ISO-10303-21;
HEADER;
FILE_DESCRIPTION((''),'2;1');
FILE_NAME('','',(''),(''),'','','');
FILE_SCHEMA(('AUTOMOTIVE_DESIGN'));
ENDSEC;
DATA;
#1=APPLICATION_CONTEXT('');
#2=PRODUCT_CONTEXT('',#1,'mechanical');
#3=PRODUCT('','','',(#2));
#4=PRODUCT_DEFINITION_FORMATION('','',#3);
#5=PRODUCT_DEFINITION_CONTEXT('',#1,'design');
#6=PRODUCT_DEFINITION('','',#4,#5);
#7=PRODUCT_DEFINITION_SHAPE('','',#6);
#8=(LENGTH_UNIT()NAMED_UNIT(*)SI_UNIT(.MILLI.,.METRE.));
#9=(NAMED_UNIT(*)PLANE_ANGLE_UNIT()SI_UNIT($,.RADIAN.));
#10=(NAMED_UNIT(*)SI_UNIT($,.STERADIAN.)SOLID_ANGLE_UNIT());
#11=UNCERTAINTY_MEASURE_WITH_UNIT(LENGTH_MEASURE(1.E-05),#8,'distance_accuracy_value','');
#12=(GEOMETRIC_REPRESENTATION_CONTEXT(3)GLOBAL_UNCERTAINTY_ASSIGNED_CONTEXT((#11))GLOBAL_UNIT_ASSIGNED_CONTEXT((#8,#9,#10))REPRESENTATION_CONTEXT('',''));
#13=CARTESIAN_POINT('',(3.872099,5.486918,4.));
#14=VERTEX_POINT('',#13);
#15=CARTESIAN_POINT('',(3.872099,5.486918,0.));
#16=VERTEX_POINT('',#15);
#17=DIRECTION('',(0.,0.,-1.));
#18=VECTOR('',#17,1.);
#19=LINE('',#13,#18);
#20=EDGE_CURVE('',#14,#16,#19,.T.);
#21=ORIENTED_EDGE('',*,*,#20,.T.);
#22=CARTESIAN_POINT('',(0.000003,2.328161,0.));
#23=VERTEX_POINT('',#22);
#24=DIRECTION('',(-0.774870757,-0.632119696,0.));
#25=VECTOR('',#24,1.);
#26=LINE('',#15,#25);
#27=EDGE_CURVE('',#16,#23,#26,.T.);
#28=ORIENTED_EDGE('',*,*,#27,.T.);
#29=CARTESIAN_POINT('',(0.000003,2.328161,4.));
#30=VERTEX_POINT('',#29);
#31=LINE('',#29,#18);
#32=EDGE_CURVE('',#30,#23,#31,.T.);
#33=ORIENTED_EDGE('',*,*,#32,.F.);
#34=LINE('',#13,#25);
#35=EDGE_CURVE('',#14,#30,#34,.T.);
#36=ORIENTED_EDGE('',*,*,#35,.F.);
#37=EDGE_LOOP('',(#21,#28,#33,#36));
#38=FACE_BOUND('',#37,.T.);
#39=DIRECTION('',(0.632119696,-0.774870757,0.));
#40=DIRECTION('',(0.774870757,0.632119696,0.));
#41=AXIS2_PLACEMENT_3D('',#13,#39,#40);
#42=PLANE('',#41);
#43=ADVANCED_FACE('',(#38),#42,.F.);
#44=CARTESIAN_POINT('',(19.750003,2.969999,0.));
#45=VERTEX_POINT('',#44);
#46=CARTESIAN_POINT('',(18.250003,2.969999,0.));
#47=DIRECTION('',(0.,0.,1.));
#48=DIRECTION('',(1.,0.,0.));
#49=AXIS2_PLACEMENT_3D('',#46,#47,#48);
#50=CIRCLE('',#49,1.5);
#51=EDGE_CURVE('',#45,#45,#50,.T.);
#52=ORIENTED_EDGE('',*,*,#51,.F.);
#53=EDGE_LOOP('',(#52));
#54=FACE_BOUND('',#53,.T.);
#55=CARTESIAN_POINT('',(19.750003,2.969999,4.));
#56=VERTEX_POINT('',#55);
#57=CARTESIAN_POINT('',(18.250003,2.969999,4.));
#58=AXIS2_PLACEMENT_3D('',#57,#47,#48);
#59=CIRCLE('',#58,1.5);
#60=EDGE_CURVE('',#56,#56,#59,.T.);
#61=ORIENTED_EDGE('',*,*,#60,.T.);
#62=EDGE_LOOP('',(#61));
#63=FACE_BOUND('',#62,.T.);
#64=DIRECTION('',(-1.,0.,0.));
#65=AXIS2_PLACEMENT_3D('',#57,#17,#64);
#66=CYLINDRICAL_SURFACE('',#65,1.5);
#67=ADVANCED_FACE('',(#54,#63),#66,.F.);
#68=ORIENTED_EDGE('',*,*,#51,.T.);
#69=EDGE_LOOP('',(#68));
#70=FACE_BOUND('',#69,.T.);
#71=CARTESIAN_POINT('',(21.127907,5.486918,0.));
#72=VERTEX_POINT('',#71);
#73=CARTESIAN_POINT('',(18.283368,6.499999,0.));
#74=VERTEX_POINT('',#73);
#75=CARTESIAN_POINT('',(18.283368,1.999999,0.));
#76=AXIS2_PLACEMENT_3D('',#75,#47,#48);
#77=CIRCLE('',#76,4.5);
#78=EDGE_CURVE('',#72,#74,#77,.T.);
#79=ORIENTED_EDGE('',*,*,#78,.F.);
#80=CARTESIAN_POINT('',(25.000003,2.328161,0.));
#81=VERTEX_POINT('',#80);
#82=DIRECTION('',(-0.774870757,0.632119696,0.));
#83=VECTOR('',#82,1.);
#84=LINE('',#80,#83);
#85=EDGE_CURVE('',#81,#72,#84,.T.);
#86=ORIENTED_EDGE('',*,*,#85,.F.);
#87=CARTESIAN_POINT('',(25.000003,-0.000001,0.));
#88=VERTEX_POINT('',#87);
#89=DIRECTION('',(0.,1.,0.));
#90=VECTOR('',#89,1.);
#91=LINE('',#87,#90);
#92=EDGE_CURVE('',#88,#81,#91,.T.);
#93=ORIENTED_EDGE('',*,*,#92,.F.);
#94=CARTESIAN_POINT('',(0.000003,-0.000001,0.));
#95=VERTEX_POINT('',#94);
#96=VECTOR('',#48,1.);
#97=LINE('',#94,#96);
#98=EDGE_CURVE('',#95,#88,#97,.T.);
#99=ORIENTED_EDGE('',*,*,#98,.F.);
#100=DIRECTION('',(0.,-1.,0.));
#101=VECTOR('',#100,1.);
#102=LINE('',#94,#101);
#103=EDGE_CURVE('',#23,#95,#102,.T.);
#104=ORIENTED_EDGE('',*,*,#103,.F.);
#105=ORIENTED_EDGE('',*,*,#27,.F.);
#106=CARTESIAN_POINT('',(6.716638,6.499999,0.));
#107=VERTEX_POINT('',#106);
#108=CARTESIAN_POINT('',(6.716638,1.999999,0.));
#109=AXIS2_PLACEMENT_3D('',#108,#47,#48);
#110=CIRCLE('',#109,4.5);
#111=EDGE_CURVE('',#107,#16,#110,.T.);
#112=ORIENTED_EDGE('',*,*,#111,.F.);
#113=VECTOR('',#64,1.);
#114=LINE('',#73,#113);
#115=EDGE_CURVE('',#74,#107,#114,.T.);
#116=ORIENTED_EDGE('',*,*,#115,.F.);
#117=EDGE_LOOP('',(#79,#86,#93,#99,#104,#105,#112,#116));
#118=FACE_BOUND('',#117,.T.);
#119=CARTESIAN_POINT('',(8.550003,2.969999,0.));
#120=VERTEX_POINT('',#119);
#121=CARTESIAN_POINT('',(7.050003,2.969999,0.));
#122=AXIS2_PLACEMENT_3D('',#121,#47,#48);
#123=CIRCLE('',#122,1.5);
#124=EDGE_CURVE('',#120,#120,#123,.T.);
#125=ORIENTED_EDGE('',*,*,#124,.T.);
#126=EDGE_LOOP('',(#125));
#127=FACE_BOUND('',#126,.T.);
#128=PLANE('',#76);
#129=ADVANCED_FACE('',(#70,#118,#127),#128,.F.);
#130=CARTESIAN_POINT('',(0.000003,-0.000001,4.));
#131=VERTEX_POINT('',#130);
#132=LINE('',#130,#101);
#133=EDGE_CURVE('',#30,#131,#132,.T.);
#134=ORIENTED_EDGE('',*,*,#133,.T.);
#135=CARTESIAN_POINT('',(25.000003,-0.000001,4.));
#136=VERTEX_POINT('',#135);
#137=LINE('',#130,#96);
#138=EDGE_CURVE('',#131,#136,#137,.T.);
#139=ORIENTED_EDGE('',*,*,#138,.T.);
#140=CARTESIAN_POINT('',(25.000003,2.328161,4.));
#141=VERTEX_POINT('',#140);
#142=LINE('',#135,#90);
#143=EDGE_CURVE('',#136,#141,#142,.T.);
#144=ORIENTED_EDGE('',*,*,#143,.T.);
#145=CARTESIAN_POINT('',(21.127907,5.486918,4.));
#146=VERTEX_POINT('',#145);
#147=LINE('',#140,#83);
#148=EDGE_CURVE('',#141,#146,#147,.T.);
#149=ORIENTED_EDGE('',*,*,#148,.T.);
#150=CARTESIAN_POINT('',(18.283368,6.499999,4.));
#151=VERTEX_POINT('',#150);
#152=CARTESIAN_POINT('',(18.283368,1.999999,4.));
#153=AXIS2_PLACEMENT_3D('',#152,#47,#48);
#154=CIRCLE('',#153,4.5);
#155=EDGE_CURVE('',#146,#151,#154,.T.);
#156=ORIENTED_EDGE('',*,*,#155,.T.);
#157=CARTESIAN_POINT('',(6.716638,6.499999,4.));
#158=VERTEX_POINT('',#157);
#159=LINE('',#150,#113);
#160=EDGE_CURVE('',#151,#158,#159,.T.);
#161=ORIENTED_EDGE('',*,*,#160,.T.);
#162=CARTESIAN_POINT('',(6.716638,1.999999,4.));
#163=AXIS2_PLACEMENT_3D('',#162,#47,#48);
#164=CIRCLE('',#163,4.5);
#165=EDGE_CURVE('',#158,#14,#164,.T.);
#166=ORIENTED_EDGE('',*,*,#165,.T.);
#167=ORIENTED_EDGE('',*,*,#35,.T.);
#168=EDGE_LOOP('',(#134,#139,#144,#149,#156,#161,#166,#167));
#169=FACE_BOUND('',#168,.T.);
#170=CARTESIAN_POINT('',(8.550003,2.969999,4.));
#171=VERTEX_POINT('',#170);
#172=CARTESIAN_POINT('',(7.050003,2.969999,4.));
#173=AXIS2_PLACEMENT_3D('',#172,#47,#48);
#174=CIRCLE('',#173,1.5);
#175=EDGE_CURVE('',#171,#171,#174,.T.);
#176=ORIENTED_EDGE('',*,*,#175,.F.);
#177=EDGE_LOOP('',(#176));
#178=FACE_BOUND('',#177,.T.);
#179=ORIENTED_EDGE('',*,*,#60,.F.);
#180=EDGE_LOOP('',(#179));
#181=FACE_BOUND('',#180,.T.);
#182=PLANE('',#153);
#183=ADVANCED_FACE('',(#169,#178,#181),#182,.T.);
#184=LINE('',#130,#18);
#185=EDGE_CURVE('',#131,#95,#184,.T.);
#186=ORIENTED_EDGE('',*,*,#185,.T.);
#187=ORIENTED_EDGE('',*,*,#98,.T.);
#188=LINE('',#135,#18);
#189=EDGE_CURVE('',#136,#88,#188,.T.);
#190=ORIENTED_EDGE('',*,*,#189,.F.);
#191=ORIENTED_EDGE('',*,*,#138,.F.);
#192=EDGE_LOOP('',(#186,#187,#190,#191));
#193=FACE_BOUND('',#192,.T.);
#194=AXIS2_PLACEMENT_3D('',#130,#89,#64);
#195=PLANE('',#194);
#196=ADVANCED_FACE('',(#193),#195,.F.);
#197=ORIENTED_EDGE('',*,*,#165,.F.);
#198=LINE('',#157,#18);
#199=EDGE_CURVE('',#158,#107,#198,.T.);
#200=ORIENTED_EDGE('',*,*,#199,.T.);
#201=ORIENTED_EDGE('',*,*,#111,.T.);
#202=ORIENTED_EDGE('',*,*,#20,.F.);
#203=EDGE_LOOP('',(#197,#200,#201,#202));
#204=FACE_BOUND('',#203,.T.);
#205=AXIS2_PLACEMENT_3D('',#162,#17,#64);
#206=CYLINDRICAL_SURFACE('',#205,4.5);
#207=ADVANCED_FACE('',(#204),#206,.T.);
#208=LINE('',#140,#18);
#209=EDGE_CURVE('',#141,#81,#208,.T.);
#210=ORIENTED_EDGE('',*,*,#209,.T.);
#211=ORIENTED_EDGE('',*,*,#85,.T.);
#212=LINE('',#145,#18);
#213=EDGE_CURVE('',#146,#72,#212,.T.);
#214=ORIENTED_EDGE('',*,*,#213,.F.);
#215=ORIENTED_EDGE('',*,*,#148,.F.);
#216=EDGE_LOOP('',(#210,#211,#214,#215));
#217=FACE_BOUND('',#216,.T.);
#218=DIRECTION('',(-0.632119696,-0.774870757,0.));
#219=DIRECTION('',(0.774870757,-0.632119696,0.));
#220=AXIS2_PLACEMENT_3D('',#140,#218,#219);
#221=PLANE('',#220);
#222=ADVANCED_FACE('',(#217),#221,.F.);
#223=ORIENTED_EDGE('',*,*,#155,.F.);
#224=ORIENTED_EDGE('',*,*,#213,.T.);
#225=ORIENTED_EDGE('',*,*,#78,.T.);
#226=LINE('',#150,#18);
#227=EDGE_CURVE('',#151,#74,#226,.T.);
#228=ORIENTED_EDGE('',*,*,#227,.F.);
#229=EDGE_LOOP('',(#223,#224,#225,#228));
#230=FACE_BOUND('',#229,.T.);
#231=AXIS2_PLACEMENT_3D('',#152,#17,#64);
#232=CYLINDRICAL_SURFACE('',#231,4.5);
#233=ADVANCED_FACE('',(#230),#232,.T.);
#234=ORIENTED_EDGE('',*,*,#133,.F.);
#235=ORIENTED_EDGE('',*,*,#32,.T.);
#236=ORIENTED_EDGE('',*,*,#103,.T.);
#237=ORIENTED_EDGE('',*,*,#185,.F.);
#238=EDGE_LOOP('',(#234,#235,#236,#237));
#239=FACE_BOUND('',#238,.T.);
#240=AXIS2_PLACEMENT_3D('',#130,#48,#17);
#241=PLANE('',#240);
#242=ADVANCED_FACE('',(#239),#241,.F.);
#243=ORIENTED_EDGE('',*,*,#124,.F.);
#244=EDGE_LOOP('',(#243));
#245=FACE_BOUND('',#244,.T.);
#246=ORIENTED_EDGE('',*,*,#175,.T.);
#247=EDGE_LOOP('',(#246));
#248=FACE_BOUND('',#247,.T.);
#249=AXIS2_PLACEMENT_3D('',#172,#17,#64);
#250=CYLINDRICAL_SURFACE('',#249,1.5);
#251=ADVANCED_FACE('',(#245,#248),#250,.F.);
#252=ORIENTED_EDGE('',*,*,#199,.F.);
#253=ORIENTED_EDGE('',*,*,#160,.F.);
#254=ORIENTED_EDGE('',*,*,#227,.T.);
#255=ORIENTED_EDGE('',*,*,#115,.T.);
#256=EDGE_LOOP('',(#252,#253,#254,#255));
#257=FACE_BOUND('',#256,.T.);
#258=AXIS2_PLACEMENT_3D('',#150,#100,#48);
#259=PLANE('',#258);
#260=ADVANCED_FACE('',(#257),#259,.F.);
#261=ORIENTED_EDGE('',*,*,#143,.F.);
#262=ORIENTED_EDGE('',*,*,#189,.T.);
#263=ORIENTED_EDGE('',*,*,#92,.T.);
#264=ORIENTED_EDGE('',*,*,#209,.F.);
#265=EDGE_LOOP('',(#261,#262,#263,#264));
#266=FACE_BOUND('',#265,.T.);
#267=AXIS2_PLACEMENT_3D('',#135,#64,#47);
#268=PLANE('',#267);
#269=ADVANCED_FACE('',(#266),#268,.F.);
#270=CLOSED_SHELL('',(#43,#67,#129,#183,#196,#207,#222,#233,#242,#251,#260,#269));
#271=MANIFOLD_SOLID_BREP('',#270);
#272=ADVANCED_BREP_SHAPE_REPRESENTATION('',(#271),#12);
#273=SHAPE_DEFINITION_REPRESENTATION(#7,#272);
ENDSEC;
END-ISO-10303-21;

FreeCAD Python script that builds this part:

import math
import FreeCAD as App
import Part
import Sketcher

doc = App.newDocument("Part")
params = doc.addObject("Spreadsheet::Sheet", "Params")
for row, (alias, value) in enumerate([
    ("sketch1_diameter", "3 mm"),
    ("sketch1_radius", "4.5 mm"),
    ("sketch1_width", "25 mm"),
    ("pad1_length", "4 mm"),
], start=1):
    params.set(f"A{row}", alias)
    params.set(f"B{row}", "=" + value)
    params.setAlias(f"B{row}", alias)

body = doc.addObject("PartDesign::Body", "Body")

sketch1 = doc.addObject("Sketcher::SketchObject", "Sketch")
body.addObject(sketch1)
sketch1.AttachmentSupport = (doc.XY_Plane, [""])
sketch1.MapMode = "FlatFace"
sketch1.addGeometry([
    Part.LineSegment(App.Vector(18.283368, 6.499999, 0), App.Vector(6.716638, 6.499999, 0)),
    Part.ArcOfCircle(Part.Circle(App.Vector(6.716638, 1.999999, 0), App.Vector(0, 0, 1), 4.5), math.radians(90), math.radians(129.206684)),
    Part.LineSegment(App.Vector(3.872099, 5.486918, 0), App.Vector(0.000003, 2.328161, 0)),
    Part.LineSegment(App.Vector(0.000003, 2.328161, 0), App.Vector(0.000003, -0.000001, 0)),
    Part.LineSegment(App.Vector(0.000003, -0.000001, 0), App.Vector(25.000003, -0.000001, 0)),
    Part.LineSegment(App.Vector(25.000003, -0.000001, 0), App.Vector(25.000003, 2.328161, 0)),
    Part.LineSegment(App.Vector(25.000003, 2.328161, 0), App.Vector(21.127907, 5.486918, 0)),
    Part.ArcOfCircle(Part.Circle(App.Vector(18.283368, 1.999999, 0), App.Vector(0, 0, 1), 4.5), math.radians(50.793316), math.radians(90)),
    Part.Circle(App.Vector(7.050003, 2.969999, 0), App.Vector(0, 0, 1), 1.5),
    Part.Circle(App.Vector(18.250003, 2.969999, 0), App.Vector(0, 0, 1), 1.5),
], False)
sketch1.addConstraint([
    Sketcher.Constraint("Tangent", 0, 2, 1, 1),
    Sketcher.Constraint("Tangent", 1, 2, 2, 1),
    Sketcher.Constraint("Coincident", 2, 2, 3, 1),
    Sketcher.Constraint("Coincident", 3, 2, 4, 1),
    Sketcher.Constraint("Coincident", 4, 2, 5, 1),
    Sketcher.Constraint("Coincident", 5, 2, 6, 1),
    Sketcher.Constraint("Tangent", 6, 2, 7, 1),
    Sketcher.Constraint("Tangent", 7, 2, 0, 1),
    Sketcher.Constraint("Horizontal", 0),
    Sketcher.Constraint("Vertical", 3),
    Sketcher.Constraint("Horizontal", 4),
    Sketcher.Constraint("Vertical", 5),
    Sketcher.Constraint("Coincident", 3, 2, -1, 1),
    Sketcher.Constraint("Equal", 1, 7),
    Sketcher.Constraint("Equal", 8, 9),
    Sketcher.Constraint("Horizontal", 8, 3, 9, 3),
    Sketcher.Constraint("Horizontal", 2, 2, 5, 2),
    Sketcher.Constraint("Horizontal", 1, 2, 6, 2),
    Sketcher.Constraint("Diameter", 8, 3.0),
    Sketcher.Constraint("Radius", 1, 4.5),
    Sketcher.Constraint("DistanceX", 4, 1, 4, 2, 25.0),
    Sketcher.Constraint("DistanceY", -1, 1, 1, 3, 1.999999),
    Sketcher.Constraint("DistanceX", 8, 3, 9, 3, 11.2),
    Sketcher.Constraint("DistanceY", -1, 1, 8, 3, 2.969999),
    Sketcher.Constraint("DistanceX", 2, 2, 8, 3, 7.05),
    Sketcher.Constraint("DistanceX", 0, 2, 0, 1, 11.566731),
    Sketcher.Constraint("DistanceY", 3, 2, 3, 1, 2.328162),
])
sketch1.setExpression("Constraints[18]", "Params.sketch1_diameter")
sketch1.setExpression("Constraints[19]", "Params.sketch1_radius")
sketch1.setExpression("Constraints[20]", "Params.sketch1_width")
pad1 = doc.addObject("PartDesign::Pad", "Pad")
body.addObject(pad1)
pad1.Profile = sketch1
pad1.setExpression("Length", "Params.pad1_length")

doc.recompute()
